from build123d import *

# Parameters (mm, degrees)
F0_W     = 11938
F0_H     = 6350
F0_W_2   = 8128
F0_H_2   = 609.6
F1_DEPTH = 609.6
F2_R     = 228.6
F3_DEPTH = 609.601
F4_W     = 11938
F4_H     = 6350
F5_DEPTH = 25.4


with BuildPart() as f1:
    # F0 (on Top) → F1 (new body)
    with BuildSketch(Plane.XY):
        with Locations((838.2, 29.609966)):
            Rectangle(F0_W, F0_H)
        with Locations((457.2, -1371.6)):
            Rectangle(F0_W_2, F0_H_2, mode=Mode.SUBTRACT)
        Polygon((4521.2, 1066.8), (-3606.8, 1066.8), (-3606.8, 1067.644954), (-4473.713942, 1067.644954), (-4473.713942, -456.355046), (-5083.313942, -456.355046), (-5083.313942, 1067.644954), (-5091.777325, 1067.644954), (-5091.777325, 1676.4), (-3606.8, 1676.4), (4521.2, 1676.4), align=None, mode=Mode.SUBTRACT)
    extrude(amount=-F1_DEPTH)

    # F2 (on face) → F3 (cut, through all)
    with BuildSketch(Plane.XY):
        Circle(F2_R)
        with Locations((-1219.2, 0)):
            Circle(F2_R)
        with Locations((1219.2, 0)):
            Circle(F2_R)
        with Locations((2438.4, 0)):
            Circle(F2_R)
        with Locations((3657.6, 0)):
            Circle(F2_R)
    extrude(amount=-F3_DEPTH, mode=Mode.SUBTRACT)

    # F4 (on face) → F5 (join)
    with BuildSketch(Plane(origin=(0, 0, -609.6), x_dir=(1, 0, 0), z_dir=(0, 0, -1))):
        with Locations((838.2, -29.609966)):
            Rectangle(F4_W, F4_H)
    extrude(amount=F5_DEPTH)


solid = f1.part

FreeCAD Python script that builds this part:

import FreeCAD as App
import Part
import Sketcher
Q = App.Units.Quantity


def add_polygon(sketch, points):
    """Adds a closed chain of lines whose ends are joined by coincident constraints."""
    first, n = sketch.GeometryCount, len(points)
    for a, b in zip(points, points[1:] + points[:1]):
        sketch.addGeometry(Part.LineSegment(App.Vector(*a, 0), App.Vector(*b, 0)), False)
    for i in range(n):
        sketch.addConstraint(Sketcher.Constraint("Coincident", first + i, 2, first + (i + 1) % n, 1))

doc = App.newDocument("Part")
body = doc.addObject("PartDesign::Body", "Body")

# Sketch on XY plane
sketch1 = body.newObject("Sketcher::SketchObject", "Sketch")
sketch1.AttachmentSupport = (doc.getObject("XY_Plane"), [""])
sketch1.MapMode = "FlatFace"
add_polygon(sketch1, [(-5130.8, 3204.609966), (-5130.8, -3145.390034), (6807.2, -3145.390034), (6807.2, 3204.609966)])  # lines 0-3
add_polygon(sketch1, [(4521.2, -1676.4), (-3606.8, -1676.4), (-3606.8, -1066.8), (4521.2, -1066.8)])  # lines 4-7
add_polygon(sketch1, [(4521.2, 1676.4), (4521.2, 1066.8), (-3606.8, 1066.8), (-3606.8, 1067.644954), (-4473.713942, 1067.644954), (-4473.713942, -456.355046), (-5083.313942, -456.355046), (-5083.313942, 1067.644954), (-5091.777325, 1067.644954), (-5091.777325, 1676.4)])  # lines 8-17
sketch1.addConstraint([
    Sketcher.Constraint("Vertical", 0),
    Sketcher.Constraint("Horizontal", 1),
    Sketcher.Constraint("Vertical", 2),
    Sketcher.Constraint("Horizontal", 3),
    Sketcher.Constraint("Horizontal", 4),
    Sketcher.Constraint("Vertical", 5),
    Sketcher.Constraint("Horizontal", 6),
    Sketcher.Constraint("Vertical", 7),
    Sketcher.Constraint("Vertical", 8),
    Sketcher.Constraint("Horizontal", 9),
    Sketcher.Constraint("Vertical", 10),
    Sketcher.Constraint("Horizontal", 11),
    Sketcher.Constraint("Vertical", 12),
    Sketcher.Constraint("Horizontal", 13),
    Sketcher.Constraint("Vertical", 14),
    Sketcher.Constraint("Horizontal", 15),
    Sketcher.Constraint("Vertical", 16),
    Sketcher.Constraint("Horizontal", 17),
    Sketcher.Constraint("Symmetric", 6, 2, 8, 2, -1),
    Sketcher.Constraint("Horizontal", 11, 2, 14, 2),
    Sketcher.Constraint("Vertical", 5, 2, 9, 2),
    Sketcher.Constraint("Equal", 13, 5),
    Sketcher.Constraint("Equal", 7, 8),
    Sketcher.Constraint("DistanceX", 1, 1, 1, 2, Q("470 in")),
    Sketcher.Constraint("DistanceX", 4, 2, 4, 1, Q("320 in")),
    Sketcher.Constraint("DistanceX", 13, 2, 13, 1, Q("24 in")),
    Sketcher.Constraint("DistanceY", 0, 2, 0, 1, Q("250 in")),
    Sketcher.Constraint("DistanceY", 12, 2, 12, 1, Q("60 in")),
    Sketcher.Constraint("DistanceX", 0, 2, -1, 1, Q("202 in")),
    Sketcher.Constraint("DistanceX", 4, 2, -1, 1, Q("142 in")),
    Sketcher.Constraint("DistanceY", 4, 2, -1, 1, Q("66 in")),
    Sketcher.Constraint("DistanceX", 11, 2, 11, 1, Q("866.913942 mm")),
    Sketcher.Constraint("DistanceX", 15, 2, 15, 1, Q("8.463383 mm")),
    Sketcher.Constraint("DistanceY", 10, 1, 10, 2, Q("0.844954 mm")),
    Sketcher.Constraint("DistanceY", 10, 2, 3, 2, Q("2136.965012 mm")),
])
pad1 = body.newObject("PartDesign::Pad", "Pad")
pad1.Profile = sketch1
pad1.Length = Q("24 in")
pad1.Reversed = True

# Sketch on XY plane
sketch2 = body.newObject("Sketcher::SketchObject", "Sketch001")
sketch2.AttachmentSupport = (doc.getObject("XY_Plane"), [""])
sketch2.MapMode = "FlatFace"
sketch2.addGeometry([
    Part.Circle(App.Vector(0, 0, 0), App.Vector(0, 0, 1), 228.6),  # 0
    Part.Circle(App.Vector(-1219.2, 0, 0), App.Vector(0, 0, 1), 228.6),  # 1
    Part.Circle(App.Vector(1219.2, 0, 0), App.Vector(0, 0, 1), 228.6),  # 2
    Part.Circle(App.Vector(2438.4, 0, 0), App.Vector(0, 0, 1), 228.6),  # 3
    Part.Circle(App.Vector(3657.6, 0, 0), App.Vector(0, 0, 1), 228.6),  # 4
], False)
sketch2.addConstraint([
    Sketcher.Constraint("Coincident", 0, 3, -1, 1),
    Sketcher.Constraint("Equal", 0, 1),
    Sketcher.Constraint("Equal", 1, 2),
    Sketcher.Constraint("Equal", 2, 3),
    Sketcher.Constraint("Equal", 3, 4),
    Sketcher.Constraint("Symmetric", 1, 3, 2, 3, -1, 1),
    Sketcher.Constraint("PointOnObject", 1, 3, -1),
    Sketcher.Constraint("PointOnObject", 3, 3, -1),
    Sketcher.Constraint("PointOnObject", 4, 3, -1),
    Sketcher.Constraint("Diameter", 0, Q("18 in")),
    Sketcher.Constraint("DistanceX", 1, 3, -1, 1, Q("48 in")),
    Sketcher.Constraint("DistanceX", -1, 1, 3, 3, Q("96 in")),
    Sketcher.Constraint("DistanceX", -1, 1, 4, 3, Q("144 in")),
])
pocket1 = body.newObject("PartDesign::Pocket", "Pocket")
pocket1.Profile = sketch2
pocket1.Type = "ThroughAll"

# Sketch on XY plane
sketch3 = body.newObject("Sketcher::SketchObject", "Sketch002")
sketch3.AttachmentSupport = (doc.getObject("XY_Plane"), [""])
sketch3.MapMode = "FlatFace"
sketch3.AttachmentOffset = App.Placement(App.Vector(0, 0, -24 * 25.4), App.Rotation())
add_polygon(sketch3, [(-5130.8, -3145.390034), (-5130.8, 3204.609966), (6807.2, 3204.609966), (6807.2, -3145.390034)])  # lines 0-3
sketch3.addConstraint([
    Sketcher.Constraint("Vertical", 0),
    Sketcher.Constraint("Horizontal", 1),
    Sketcher.Constraint("Vertical", 2),
    Sketcher.Constraint("Horizontal", 3),
    Sketcher.Constraint("DistanceX", 1, 1, 1, 2, Q("470 in")),
    Sketcher.Constraint("DistanceY", 0, 1, 0, 2, Q("250 in")),
    Sketcher.Constraint("DistanceX", 0, 2, -1, 1, Q("202 in")),
    Sketcher.Constraint("DistanceY", -1, 1, 0, 2, Q("3204.609966 mm")),
])
pad2 = body.newObject("PartDesign::Pad", "Pad001")
pad2.Profile = sketch3
pad2.Length = Q("1 in")
pad2.Reversed = True

doc.recompute()
